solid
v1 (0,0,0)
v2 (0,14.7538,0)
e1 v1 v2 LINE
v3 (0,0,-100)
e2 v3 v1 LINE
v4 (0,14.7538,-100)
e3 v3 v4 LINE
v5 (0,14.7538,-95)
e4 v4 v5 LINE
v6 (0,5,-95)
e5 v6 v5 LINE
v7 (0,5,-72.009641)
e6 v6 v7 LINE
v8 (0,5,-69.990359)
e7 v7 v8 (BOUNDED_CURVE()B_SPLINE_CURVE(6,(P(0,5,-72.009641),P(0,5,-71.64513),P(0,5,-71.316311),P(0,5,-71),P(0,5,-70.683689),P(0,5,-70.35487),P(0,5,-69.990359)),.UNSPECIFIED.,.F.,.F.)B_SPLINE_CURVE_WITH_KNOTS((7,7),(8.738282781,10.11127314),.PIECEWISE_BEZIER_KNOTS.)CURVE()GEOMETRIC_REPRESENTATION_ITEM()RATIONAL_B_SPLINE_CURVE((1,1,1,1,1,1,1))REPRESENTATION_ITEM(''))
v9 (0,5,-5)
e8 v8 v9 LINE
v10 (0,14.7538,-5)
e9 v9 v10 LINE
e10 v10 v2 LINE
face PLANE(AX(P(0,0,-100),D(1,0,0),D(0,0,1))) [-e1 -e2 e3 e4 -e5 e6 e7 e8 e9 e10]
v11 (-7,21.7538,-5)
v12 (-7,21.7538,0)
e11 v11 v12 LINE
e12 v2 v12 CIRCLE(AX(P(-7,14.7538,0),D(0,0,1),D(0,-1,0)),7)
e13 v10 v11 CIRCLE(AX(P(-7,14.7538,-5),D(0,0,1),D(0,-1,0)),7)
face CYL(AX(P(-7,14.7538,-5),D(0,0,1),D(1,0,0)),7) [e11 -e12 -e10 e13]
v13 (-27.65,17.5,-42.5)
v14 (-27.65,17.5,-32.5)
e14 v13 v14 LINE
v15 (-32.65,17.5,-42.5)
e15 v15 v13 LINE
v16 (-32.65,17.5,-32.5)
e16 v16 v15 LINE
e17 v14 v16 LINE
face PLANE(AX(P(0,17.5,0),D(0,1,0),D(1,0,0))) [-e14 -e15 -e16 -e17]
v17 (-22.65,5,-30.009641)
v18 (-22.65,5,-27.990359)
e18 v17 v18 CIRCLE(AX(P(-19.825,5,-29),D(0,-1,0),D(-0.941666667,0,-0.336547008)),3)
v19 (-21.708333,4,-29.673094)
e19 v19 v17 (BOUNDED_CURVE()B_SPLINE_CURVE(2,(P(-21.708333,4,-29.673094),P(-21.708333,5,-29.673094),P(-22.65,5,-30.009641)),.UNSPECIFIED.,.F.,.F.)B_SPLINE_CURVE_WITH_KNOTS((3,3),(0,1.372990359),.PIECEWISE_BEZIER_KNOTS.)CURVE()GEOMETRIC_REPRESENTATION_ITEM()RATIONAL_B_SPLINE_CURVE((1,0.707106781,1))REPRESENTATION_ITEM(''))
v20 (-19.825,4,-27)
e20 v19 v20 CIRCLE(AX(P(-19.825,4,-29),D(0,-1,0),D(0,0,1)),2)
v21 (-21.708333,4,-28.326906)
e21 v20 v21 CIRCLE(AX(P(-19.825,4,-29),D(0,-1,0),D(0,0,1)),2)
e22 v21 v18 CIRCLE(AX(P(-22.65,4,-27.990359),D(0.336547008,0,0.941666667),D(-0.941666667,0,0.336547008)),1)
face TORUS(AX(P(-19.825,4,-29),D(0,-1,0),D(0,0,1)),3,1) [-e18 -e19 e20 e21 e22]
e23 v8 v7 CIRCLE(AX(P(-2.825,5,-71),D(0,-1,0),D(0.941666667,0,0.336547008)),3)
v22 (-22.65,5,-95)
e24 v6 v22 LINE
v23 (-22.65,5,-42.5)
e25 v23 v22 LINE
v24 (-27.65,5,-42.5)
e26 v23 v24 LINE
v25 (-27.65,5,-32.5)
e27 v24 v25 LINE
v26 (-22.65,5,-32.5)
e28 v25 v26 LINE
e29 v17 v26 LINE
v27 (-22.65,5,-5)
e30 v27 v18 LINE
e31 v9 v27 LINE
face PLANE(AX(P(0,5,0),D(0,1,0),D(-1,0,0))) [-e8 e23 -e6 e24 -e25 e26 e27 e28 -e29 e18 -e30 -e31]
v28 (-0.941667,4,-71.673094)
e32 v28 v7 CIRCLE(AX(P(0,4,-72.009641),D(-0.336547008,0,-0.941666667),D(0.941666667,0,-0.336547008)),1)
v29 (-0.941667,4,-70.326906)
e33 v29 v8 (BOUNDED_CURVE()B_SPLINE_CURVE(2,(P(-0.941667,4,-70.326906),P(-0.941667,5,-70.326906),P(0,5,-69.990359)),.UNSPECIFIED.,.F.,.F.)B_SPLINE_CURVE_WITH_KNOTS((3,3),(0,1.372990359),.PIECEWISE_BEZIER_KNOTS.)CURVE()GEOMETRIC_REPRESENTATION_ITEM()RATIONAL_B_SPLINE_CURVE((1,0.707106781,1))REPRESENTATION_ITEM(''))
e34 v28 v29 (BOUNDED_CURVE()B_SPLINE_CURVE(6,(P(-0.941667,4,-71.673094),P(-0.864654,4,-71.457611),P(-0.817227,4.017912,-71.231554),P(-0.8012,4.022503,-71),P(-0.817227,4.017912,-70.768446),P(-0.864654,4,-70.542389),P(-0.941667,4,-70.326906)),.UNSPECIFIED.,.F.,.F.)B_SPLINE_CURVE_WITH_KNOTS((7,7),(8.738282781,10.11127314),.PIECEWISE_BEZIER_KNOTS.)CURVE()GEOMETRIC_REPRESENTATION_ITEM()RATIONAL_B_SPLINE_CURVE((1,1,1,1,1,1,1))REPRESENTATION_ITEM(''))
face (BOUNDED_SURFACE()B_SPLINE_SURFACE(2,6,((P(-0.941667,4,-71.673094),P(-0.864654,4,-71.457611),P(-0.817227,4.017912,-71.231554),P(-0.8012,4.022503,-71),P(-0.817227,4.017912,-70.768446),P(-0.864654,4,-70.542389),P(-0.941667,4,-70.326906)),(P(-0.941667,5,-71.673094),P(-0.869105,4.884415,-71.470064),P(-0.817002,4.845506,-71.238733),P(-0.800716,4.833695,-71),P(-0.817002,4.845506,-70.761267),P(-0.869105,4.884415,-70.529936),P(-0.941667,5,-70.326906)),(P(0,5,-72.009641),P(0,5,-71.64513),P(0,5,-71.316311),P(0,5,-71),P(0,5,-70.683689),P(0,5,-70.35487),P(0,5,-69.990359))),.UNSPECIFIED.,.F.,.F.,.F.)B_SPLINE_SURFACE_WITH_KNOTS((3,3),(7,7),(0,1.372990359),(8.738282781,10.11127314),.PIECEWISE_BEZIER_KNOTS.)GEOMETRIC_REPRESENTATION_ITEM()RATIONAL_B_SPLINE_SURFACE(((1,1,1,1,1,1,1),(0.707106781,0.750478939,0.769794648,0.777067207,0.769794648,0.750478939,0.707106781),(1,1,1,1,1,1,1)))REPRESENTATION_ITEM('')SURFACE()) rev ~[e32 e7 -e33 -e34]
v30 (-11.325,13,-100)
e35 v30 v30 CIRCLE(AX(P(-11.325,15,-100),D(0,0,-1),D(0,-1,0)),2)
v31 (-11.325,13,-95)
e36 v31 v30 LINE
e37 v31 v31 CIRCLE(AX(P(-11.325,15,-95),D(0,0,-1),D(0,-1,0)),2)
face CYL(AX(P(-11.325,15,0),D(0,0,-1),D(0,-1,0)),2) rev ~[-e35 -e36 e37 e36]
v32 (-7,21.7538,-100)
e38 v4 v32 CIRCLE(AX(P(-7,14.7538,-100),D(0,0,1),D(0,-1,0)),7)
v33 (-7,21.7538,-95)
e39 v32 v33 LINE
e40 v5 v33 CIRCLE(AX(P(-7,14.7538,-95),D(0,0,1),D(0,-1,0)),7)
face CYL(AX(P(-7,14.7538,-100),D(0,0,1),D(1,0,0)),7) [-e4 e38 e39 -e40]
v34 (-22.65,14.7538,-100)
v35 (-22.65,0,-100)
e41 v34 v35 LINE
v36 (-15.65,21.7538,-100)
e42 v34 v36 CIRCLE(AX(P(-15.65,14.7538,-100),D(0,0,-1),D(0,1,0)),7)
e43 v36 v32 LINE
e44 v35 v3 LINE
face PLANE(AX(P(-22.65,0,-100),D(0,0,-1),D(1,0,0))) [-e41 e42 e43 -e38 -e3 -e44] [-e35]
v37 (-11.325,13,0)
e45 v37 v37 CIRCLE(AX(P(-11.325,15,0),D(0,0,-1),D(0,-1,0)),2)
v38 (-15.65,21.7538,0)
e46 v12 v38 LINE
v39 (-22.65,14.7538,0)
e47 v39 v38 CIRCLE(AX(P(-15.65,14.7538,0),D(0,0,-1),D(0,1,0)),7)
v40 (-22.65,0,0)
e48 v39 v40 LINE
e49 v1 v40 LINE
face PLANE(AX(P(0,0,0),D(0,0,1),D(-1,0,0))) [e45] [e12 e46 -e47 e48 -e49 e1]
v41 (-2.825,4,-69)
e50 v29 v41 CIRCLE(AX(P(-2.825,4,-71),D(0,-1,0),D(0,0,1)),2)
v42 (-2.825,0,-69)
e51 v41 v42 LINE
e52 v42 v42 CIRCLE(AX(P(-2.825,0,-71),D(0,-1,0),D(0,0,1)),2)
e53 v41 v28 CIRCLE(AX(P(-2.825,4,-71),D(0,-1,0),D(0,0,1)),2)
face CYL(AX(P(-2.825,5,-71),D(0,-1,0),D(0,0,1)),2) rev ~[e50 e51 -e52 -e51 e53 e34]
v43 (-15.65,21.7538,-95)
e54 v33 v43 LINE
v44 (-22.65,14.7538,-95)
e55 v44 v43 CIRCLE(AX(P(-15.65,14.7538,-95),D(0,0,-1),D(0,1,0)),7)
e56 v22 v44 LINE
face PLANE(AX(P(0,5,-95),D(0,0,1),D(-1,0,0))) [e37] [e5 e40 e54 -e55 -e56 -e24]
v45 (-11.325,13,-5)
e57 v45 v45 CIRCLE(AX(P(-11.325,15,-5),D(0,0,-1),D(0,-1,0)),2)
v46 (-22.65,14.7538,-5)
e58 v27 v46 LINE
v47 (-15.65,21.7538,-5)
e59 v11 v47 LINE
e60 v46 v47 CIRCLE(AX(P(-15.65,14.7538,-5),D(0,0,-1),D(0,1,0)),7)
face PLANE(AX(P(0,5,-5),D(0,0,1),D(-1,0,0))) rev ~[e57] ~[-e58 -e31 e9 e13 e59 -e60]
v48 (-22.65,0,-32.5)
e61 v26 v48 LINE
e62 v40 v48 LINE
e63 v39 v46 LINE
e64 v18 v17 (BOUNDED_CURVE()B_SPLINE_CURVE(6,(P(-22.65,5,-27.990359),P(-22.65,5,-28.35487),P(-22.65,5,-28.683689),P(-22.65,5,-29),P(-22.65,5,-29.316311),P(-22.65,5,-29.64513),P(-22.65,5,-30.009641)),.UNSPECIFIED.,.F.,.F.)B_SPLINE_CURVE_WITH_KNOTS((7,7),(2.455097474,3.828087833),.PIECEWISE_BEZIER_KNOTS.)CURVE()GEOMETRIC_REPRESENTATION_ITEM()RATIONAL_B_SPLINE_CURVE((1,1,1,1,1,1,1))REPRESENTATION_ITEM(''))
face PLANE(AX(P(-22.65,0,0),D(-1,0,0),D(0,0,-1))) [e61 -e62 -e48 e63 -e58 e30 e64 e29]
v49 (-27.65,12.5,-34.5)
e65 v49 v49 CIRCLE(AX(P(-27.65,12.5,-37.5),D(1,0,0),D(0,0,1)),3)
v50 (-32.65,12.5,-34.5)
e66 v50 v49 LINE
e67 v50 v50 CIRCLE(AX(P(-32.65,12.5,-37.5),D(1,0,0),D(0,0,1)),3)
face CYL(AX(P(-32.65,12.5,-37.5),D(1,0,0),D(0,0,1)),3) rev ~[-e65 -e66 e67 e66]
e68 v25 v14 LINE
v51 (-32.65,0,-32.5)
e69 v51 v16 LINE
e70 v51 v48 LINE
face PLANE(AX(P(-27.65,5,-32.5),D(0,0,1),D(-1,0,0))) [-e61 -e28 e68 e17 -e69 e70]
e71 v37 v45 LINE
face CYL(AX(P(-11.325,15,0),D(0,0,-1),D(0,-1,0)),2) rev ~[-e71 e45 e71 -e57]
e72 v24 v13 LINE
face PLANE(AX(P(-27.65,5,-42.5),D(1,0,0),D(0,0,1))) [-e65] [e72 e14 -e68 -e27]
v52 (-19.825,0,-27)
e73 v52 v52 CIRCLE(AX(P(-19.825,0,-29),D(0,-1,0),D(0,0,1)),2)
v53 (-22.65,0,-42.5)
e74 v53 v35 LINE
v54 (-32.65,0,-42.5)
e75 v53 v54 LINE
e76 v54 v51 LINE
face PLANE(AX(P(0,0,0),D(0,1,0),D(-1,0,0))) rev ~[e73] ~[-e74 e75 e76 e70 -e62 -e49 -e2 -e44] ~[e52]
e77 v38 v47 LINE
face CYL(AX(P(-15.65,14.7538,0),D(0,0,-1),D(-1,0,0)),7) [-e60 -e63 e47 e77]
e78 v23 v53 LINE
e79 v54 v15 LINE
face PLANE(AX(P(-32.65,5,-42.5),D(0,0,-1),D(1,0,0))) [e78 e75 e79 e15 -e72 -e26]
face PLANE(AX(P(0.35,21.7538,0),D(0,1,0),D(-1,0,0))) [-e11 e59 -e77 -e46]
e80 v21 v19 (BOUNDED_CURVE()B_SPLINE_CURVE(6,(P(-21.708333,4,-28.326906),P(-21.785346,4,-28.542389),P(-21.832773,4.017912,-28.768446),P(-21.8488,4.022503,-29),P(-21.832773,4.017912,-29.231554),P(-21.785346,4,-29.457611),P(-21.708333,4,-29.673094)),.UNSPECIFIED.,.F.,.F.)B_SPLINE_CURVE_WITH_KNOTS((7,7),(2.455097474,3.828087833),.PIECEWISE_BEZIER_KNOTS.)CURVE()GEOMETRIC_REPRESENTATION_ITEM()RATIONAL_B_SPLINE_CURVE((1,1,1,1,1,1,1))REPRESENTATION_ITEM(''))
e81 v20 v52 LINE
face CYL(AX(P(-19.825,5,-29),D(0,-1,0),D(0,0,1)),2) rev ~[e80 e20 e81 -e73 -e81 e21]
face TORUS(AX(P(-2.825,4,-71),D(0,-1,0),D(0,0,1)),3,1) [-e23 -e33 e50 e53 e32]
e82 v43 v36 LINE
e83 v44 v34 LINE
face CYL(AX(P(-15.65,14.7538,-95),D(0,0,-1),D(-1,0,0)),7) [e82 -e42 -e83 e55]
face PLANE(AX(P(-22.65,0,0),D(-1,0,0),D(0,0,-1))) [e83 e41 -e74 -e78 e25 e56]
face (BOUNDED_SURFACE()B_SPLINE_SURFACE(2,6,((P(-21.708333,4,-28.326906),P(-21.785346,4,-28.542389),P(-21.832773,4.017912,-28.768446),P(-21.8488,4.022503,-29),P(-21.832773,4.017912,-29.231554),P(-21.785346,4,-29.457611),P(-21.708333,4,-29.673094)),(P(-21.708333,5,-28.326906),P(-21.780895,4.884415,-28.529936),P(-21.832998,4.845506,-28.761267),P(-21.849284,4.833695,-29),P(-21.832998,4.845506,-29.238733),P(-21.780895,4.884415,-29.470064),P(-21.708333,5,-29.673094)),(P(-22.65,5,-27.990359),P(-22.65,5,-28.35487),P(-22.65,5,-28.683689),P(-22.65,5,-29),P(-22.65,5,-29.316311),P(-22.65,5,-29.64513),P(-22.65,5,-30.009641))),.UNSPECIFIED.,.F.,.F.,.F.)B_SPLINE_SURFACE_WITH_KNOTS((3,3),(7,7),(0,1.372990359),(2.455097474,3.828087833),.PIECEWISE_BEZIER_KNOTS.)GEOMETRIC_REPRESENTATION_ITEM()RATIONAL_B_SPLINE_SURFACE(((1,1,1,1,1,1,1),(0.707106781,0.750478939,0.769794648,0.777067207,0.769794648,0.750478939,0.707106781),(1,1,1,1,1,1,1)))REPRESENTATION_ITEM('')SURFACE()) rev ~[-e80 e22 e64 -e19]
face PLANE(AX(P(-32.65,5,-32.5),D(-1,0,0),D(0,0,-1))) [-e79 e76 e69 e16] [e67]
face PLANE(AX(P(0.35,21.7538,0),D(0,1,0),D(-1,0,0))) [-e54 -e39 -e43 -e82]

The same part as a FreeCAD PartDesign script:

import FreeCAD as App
import Part
import Sketcher

V = App.Vector
Q = App.Units.Quantity


def edges_at(feature, points):
    """Names of the edges that pass closest to the given points."""
    edges = feature.Shape.Edges
    near = lambda p: min(range(len(edges)), key=lambda i: edges[i].distToShape(Part.Vertex(*p))[0])
    return sorted({f"Edge{near(p) + 1}" for p in points})


def add_polygon(sketch, points):
    """Adds a closed chain of lines whose ends are joined by coincident constraints."""
    first, n = sketch.GeometryCount, len(points)
    for a, b in zip(points, points[1:] + points[:1]):
        sketch.addGeometry(Part.LineSegment(App.Vector(*a, 0), App.Vector(*b, 0)), False)
    for i in range(n):
        sketch.addConstraint(Sketcher.Constraint("Coincident", first + i, 2, first + (i + 1) % n, 1))

doc = App.newDocument("Part")
body = doc.addObject("PartDesign::Body", "Body")

# Sketch on XZ plane
sketch1 = doc.addObject("Sketcher::SketchObject", "Sketch")
body.addObject(sketch1)
sketch1.AttachmentSupport = (doc.XZ_Plane, [""])
sketch1.MapMode = "FlatFace"
add_polygon(sketch1, [(-23, 0), (0, 0), (0, -100), (-23, -100)])  # lines 0-3
sketch1.addConstraint(Sketcher.Constraint("Horizontal", 0))
sketch1.addConstraint(Sketcher.Constraint("Vertical", 1))
sketch1.addConstraint(Sketcher.Constraint("Horizontal", 2))
sketch1.addConstraint(Sketcher.Constraint("Vertical", 3))
sketch1.addConstraint(Sketcher.Constraint("Coincident", 0, 2, -1, 1))
sketch1.addConstraint(Sketcher.Constraint("DistanceY", 1, 2, 1, 1, Q("100 mm")))
sketch1.addConstraint(Sketcher.Constraint("DistanceX", 0, 1, 0, 2, Q("22.65 mm")))
pad1 = doc.addObject("PartDesign::Pad", "Pad")
body.addObject(pad1)
pad1.Profile = sketch1
pad1.Length = 5
pad1.Reversed = True

# Sketch on XZ plane
sketch2 = doc.addObject("Sketcher::SketchObject", "Sketch001")
body.addObject(sketch2)
sketch2.AttachmentSupport = (doc.XZ_Plane, [""])
sketch2.MapMode = "FlatFace"
sketch2.AttachmentOffset = App.Placement(V(0, 0, -5), App.Rotation())
add_polygon(sketch2, [(-23, -5), (-23, 0), (0, 0), (0, -5)])  # lines 0-3
add_polygon(sketch2, [(-23, -100), (-23, -95), (0, -95), (0, -100)])  # lines 4-7
sketch2.addConstraint(Sketcher.Constraint("Vertical", 0))
sketch2.addConstraint(Sketcher.Constraint("Horizontal", 1))
sketch2.addConstraint(Sketcher.Constraint("Vertical", 2))
sketch2.addConstraint(Sketcher.Constraint("Horizontal", 3))
sketch2.addConstraint(Sketcher.Constraint("Vertical", 4))
sketch2.addConstraint(Sketcher.Constraint("Horizontal", 5))
sketch2.addConstraint(Sketcher.Constraint("Vertical", 6))
sketch2.addConstraint(Sketcher.Constraint("Horizontal", 7))
sketch2.addConstraint(Sketcher.Constraint("Coincident", 1, 2, -1, 1))
sketch2.addConstraint(Sketcher.Constraint("PointOnObject", 5, 2, -2))
sketch2.addConstraint(Sketcher.Constraint("Vertical", 3, 2, 4, 2))
sketch2.addConstraint(Sketcher.Constraint("Equal", 2, 4))
sketch2.addConstraint(Sketcher.Constraint("DistanceY", 0, 1, 0, 2, Q("5 mm")))
sketch2.addConstraint(Sketcher.Constraint("DistanceY", 4, 2, -1, 1, Q("95 mm")))
sketch2.addConstraint(Sketcher.Constraint("DistanceX", 1, 1, 1, 2, Q("22.65 mm")))
pad2 = doc.addObject("PartDesign::Pad", "Pad001")
body.addObject(pad2)
pad2.Profile = sketch2
pad2.Length = 40
pad2.Reversed = True

# Sketch on XY plane
sketch3 = doc.addObject("Sketcher::SketchObject", "Sketch002")
body.addObject(sketch3)
sketch3.AttachmentSupport = (doc.XY_Plane, [""])
sketch3.MapMode = "FlatFace"
sketch3.addGeometry(Part.Circle(V(-11.3, 15, 0), V(0, 0, 1), 2), False)
sketch3.addConstraint(Sketcher.Constraint("Diameter", 0, Q("4 mm")))
sketch3.addConstraint(Sketcher.Constraint("DistanceY", -1, 1, 0, 3, Q("15 mm")))
sketch3.addConstraint(Sketcher.Constraint("DistanceX", 0, 3, -1, 1, Q("11.325 mm")))
doc.recompute()
hole = doc.addObject("PartDesign::Hole", "Hole")
body.addObject(hole)
hole.Profile = sketch3
hole.ThreadType = "None"
hole.Diameter = 4
hole.DepthType = "Dimension"
hole.Depth = 115
hole.DrillPoint = "Angled"
hole.DrillPointAngle = 118

# Sketch on XY plane
sketch4 = doc.addObject("Sketcher::SketchObject", "Sketch003")
body.addObject(sketch4)
sketch4.AttachmentSupport = (doc.XY_Plane, [""])
sketch4.MapMode = "FlatFace"
add_polygon(sketch4, [(-23, 45), (-23, 22), (0, 22), (0, 45)])  # lines 0-3
sketch4.addConstraint(Sketcher.Constraint("Vertical", 0))
sketch4.addConstraint(Sketcher.Constraint("Horizontal", 1))
sketch4.addConstraint(Sketcher.Constraint("Vertical", 2))
sketch4.addConstraint(Sketcher.Constraint("Horizontal", 3))
sketch4.addConstraint(Sketcher.Constraint("DistanceX", 1, 1, 1, 2, Q("23 mm")))
sketch4.addConstraint(Sketcher.Constraint("DistanceY", -1, 1, 2, 2, Q("45 mm")))
sketch4.addConstraint(Sketcher.Constraint("DistanceX", 0, 2, -1, 1, Q("22.65 mm")))
sketch4.addConstraint(Sketcher.Constraint("DistanceY", 0, 2, 0, 1, Q("23.2462 mm")))
pocket1 = doc.addObject("PartDesign::Pocket", "Pocket")
body.addObject(pocket1)
pocket1.Profile = sketch4
pocket1.Length = 102.75

# Sketch on XZ plane
sketch5 = doc.addObject("Sketcher::SketchObject", "Sketch004")
body.addObject(sketch5)
sketch5.AttachmentSupport = (doc.XZ_Plane, [""])
sketch5.MapMode = "FlatFace"
sketch5.AttachmentOffset = App.Placement(V(0, 0, -5), App.Rotation())
sketch5.addGeometry(Part.Circle(V(-2.8, -71, 0), V(0, 0, 1), 2), False)
sketch5.addGeometry(Part.Circle(V(-19.8, -29, 0), V(0, 0, 1), 2), False)
sketch5.addConstraint(Sketcher.Constraint("Equal", 0, 1))
sketch5.addConstraint(Sketcher.Constraint("Diameter", 0, Q("4 mm")))
sketch5.addConstraint(Sketcher.Constraint("DistanceY", 0, 3, -1, 1, Q("71 mm")))
sketch5.addConstraint(Sketcher.Constraint("DistanceY", 1, 3, -1, 1, Q("29 mm")))
sketch5.addConstraint(Sketcher.Constraint("DistanceX", 1, 3, 0, 3, Q("17 mm")))
sketch5.addConstraint(Sketcher.Constraint("DistanceX", 0, 3, -1, 1, Q("2.825 mm")))
doc.recompute()
hole2 = doc.addObject("PartDesign::Hole", "Hole001")
body.addObject(hole2)
hole2.Profile = sketch5
hole2.ThreadType = "None"
hole2.Diameter = 4
hole2.DepthType = "Dimension"
hole2.Depth = 115
hole2.DrillPoint = "Angled"
hole2.DrillPointAngle = 118
hole2.Reversed = True
doc.recompute()

fillet = doc.addObject("PartDesign::Fillet", "Fillet")
body.addObject(fillet)
fillet.Base = (hole2, edges_at(hole2, [(-2.825, 5, -73), (-19.825, 5, -31)]))
fillet.Radius = 1

# Sketch on XZ plane
sketch6 = doc.addObject("Sketcher::SketchObject", "Sketch005")
body.addObject(sketch6)
sketch6.AttachmentSupport = (doc.XZ_Plane, [""])
sketch6.MapMode = "FlatFace"
sketch6.AttachmentOffset = App.Placement(V(0, 0, -5), App.Rotation())
add_polygon(sketch6, [(-23, -32), (-23, -42), (-33, -42), (-33, -32)])  # lines 0-3
sketch6.addConstraint(Sketcher.Constraint("Vertical", 0))
sketch6.addConstraint(Sketcher.Constraint("Horizontal", 1))
sketch6.addConstraint(Sketcher.Constraint("Vertical", 2))
sketch6.addConstraint(Sketcher.Constraint("Horizontal", 3))
sketch6.addConstraint(Sketcher.Constraint("Equal", 3, 0))
sketch6.addConstraint(Sketcher.Constraint("DistanceX", 1, 2, 1, 1, Q("10 mm")))
sketch6.addConstraint(Sketcher.Constraint("DistanceY", 0, 2, -1, 1, Q("42.5 mm")))
sketch6.addConstraint(Sketcher.Constraint("DistanceX", 0, 2, -1, 1, Q("22.65 mm")))
pad3 = doc.addObject("PartDesign::Pad", "Pad002")
body.addObject(pad3)
pad3.Profile = sketch6
pad3.Length = 5

# Sketch on XZ plane
sketch7 = doc.addObject("Sketcher::SketchObject", "Sketch006")
body.addObject(sketch7)
sketch7.AttachmentSupport = (doc.XZ_Plane, [""])
sketch7.MapMode = "FlatFace"
sketch7.AttachmentOffset = App.Placement(V(0, 0, -5), App.Rotation())
add_polygon(sketch7, [(-28, -42), (-33, -42), (-33, -32), (-28, -32)])  # lines 0-3
sketch7.addConstraint(Sketcher.Constraint("Horizontal", 0))
sketch7.addConstraint(Sketcher.Constraint("Vertical", 1))
sketch7.addConstraint(Sketcher.Constraint("Horizontal", 2))
sketch7.addConstraint(Sketcher.Constraint("Vertical", 3))
sketch7.addConstraint(Sketcher.Constraint("DistanceX", 0, 2, 0, 1, Q("5 mm")))
sketch7.addConstraint(Sketcher.Constraint("DistanceY", 1, 1, 1, 2, Q("10 mm")))
sketch7.addConstraint(Sketcher.Constraint("DistanceY", 0, 2, -1, 1, Q("42.5 mm")))
sketch7.addConstraint(Sketcher.Constraint("DistanceX", 0, 2, -1, 1, Q("32.65 mm")))
pad4 = doc.addObject("PartDesign::Pad", "Pad003")
body.addObject(pad4)
pad4.Profile = sketch7
pad4.Length = 12.5
pad4.Reversed = True

# Sketch on YZ plane
sketch8 = doc.addObject("Sketcher::SketchObject", "Sketch007")
body.addObject(sketch8)
sketch8.AttachmentSupport = (doc.YZ_Plane, [""])
sketch8.MapMode = "FlatFace"
sketch8.AttachmentOffset = App.Placement(V(0, 0, -32.65), App.Rotation())
sketch8.addGeometry(Part.Circle(V(12.5, -37.5, 0), V(0, 0, 1), 3), False)
sketch8.addConstraint(Sketcher.Constraint("Diameter", 0, Q("6 mm")))
sketch8.addConstraint(Sketcher.Constraint("DistanceX", -1, 1, 0, 3, Q("12.5 mm")))
sketch8.addConstraint(Sketcher.Constraint("DistanceY", 0, 3, -1, 1, Q("37.5 mm")))
doc.recompute()
hole3 = doc.addObject("PartDesign::Hole", "Hole002")
body.addObject(hole3)
hole3.Profile = sketch8
hole3.ThreadType = "None"
hole3.Diameter = 6
hole3.DepthType = "Dimension"
hole3.Depth = 115
hole3.DrillPoint = "Angled"
hole3.DrillPointAngle = 118
hole3.Reversed = True
doc.recompute()

fillet2 = doc.addObject("PartDesign::Fillet", "Fillet001")
body.addObject(fillet2)
fillet2.Base = (hole3, edges_at(hole3, [
    (-22.65, 21.754, -97.5),
    (-22.65, 21.754, -2.5),
    (0, 21.754, -2.5),
    (0, 21.754, -97.5),
]))
fillet2.Radius = 7

doc.recompute()
